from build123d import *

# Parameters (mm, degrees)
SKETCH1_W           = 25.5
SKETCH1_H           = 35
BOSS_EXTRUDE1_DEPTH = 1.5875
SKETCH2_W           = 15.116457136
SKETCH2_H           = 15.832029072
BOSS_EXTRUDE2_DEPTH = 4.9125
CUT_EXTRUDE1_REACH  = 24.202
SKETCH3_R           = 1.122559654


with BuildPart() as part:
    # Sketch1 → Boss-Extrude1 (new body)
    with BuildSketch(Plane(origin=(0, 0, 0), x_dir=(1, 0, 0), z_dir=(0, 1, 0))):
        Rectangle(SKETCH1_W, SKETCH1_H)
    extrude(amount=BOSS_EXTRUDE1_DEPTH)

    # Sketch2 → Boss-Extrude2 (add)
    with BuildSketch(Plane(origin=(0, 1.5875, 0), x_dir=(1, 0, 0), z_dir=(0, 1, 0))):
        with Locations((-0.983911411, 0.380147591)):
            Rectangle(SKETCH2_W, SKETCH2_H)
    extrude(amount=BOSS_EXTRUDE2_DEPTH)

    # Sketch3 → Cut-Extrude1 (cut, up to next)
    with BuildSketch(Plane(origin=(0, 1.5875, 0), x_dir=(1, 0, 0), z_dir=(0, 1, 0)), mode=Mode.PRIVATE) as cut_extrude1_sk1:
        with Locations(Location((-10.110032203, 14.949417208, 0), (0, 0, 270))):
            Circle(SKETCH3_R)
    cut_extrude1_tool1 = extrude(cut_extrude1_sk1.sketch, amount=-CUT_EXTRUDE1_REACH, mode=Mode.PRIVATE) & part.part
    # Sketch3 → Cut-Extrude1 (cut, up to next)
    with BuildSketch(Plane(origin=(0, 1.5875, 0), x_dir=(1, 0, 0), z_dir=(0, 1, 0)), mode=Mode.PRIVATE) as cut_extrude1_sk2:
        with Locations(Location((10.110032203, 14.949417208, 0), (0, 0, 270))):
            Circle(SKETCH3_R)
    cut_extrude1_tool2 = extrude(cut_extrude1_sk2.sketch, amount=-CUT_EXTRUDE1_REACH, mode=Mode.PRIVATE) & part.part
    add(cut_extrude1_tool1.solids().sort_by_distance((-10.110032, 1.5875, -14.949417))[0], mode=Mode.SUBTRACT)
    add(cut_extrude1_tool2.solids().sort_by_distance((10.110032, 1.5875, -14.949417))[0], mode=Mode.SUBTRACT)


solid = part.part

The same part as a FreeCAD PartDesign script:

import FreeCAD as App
import Part
import Sketcher
Q = App.Units.Quantity


def add_polygon(sketch, points):
    """Adds a closed chain of lines whose ends are joined by coincident constraints."""
    first, n = sketch.GeometryCount, len(points)
    for a, b in zip(points, points[1:] + points[:1]):
        sketch.addGeometry(Part.LineSegment(App.Vector(*a, 0), App.Vector(*b, 0)), False)
    for i in range(n):
        sketch.addConstraint(Sketcher.Constraint("Coincident", first + i, 2, first + (i + 1) % n, 1))

doc = App.newDocument("Part")
body = doc.addObject("PartDesign::Body", "Body")

sketch1 = body.newObject("Sketcher::SketchObject", "Sketch")
sketch1.AttachmentSupport = (doc.getObject("XZ_Plane"), [""])
sketch1.MapMode = "FlatFace"
add_polygon(sketch1, [(-12.75, -17.5), (-12.75, 17.5), (12.75, 17.5), (12.75, -17.5)])
sketch1.addConstraint([
    Sketcher.Constraint("Vertical", 0),
    Sketcher.Constraint("Horizontal", 1),
    Sketcher.Constraint("Vertical", 2),
    Sketcher.Constraint("Horizontal", 3),
    Sketcher.Constraint("Symmetric", 0, 2, 2, 2, -1, 1),
    Sketcher.Constraint("DistanceY", 0, 1, 0, 2, Q("35 mm")),
    Sketcher.Constraint("DistanceX", 1, 1, 1, 2, Q("25.5 mm")),
])
pad1 = body.newObject("PartDesign::Pad", "Pad")
pad1.Profile = sketch1
pad1.Length = 1.5875
pad1.Reversed = True

sketch2 = body.newObject("Sketcher::SketchObject", "Sketch001")
sketch2.AttachmentSupport = (doc.getObject("XZ_Plane"), [""])
sketch2.MapMode = "FlatFace"
sketch2.AttachmentOffset = App.Placement(App.Vector(0, 0, -1.5875), App.Rotation())
add_polygon(sketch2, [(-8.54214, -8.296162), (-8.54214, 7.535867), (6.574317, 7.535867), (6.574317, -8.296162)])
sketch2.addConstraint([
    Sketcher.Constraint("Vertical", 0),
    Sketcher.Constraint("Horizontal", 1),
    Sketcher.Constraint("Vertical", 2),
    Sketcher.Constraint("Horizontal", 3),
    Sketcher.Constraint("DistanceY", 0, 1, 0, 2, Q("15.832029 mm")),
    Sketcher.Constraint("DistanceX", 1, 1, 1, 2, Q("15.116457 mm")),
    Sketcher.Constraint("DistanceX", 0, 2, -1, 1, Q("8.54214 mm")),
    Sketcher.Constraint("DistanceY", -1, 1, 0, 2, Q("7.535867 mm")),
])
pad2 = body.newObject("PartDesign::Pad", "Pad001")
pad2.Profile = sketch2
pad2.Length = 4.9125
pad2.Reversed = True

sketch3 = body.newObject("Sketcher::SketchObject", "Sketch002")
sketch3.AttachmentSupport = (doc.getObject("XZ_Plane"), [""])
sketch3.MapMode = "FlatFace"
sketch3.AttachmentOffset = App.Placement(App.Vector(0, 0, -1.5875), App.Rotation())
sketch3.addGeometry(Part.Circle(App.Vector(-10.110032, -14.949417, 0), App.Vector(0, 0, 1), 1.12256), False)
sketch3.addConstraint([
    Sketcher.Constraint("Diameter", 0, Q("2.245119 mm")),
    Sketcher.Constraint("DistanceX", 0, 3, -1, 1, Q("10.110032 mm")),
    Sketcher.Constraint("DistanceY", 0, 3, -1, 1, Q("14.949417 mm")),
])
pocket1 = body.newObject("PartDesign::Pocket", "Pocket")
pocket1.Profile = sketch3
pocket1.Type = "UpToFirst"
pocket1.Reversed = True

sketch4 = body.newObject("Sketcher::SketchObject", "Sketch003")
sketch4.AttachmentSupport = (doc.getObject("XZ_Plane"), [""])
sketch4.MapMode = "FlatFace"
sketch4.AttachmentOffset = App.Placement(App.Vector(0, 0, -1.5875), App.Rotation())
sketch4.addGeometry(Part.Circle(App.Vector(10.110032, -14.949417, 0), App.Vector(0, 0, 1), 1.12256), False)
sketch4.addConstraint([
    Sketcher.Constraint("Diameter", 0, Q("2.245119 mm")),
    Sketcher.Constraint("DistanceX", -1, 1, 0, 3, Q("10.110032 mm")),
    Sketcher.Constraint("DistanceY", 0, 3, -1, 1, Q("14.949417 mm")),
])
pocket2 = body.newObject("PartDesign::Pocket", "Pocket001")
pocket2.Profile = sketch4
pocket2.Type = "UpToFirst"
pocket2.Reversed = True

doc.recompute()
